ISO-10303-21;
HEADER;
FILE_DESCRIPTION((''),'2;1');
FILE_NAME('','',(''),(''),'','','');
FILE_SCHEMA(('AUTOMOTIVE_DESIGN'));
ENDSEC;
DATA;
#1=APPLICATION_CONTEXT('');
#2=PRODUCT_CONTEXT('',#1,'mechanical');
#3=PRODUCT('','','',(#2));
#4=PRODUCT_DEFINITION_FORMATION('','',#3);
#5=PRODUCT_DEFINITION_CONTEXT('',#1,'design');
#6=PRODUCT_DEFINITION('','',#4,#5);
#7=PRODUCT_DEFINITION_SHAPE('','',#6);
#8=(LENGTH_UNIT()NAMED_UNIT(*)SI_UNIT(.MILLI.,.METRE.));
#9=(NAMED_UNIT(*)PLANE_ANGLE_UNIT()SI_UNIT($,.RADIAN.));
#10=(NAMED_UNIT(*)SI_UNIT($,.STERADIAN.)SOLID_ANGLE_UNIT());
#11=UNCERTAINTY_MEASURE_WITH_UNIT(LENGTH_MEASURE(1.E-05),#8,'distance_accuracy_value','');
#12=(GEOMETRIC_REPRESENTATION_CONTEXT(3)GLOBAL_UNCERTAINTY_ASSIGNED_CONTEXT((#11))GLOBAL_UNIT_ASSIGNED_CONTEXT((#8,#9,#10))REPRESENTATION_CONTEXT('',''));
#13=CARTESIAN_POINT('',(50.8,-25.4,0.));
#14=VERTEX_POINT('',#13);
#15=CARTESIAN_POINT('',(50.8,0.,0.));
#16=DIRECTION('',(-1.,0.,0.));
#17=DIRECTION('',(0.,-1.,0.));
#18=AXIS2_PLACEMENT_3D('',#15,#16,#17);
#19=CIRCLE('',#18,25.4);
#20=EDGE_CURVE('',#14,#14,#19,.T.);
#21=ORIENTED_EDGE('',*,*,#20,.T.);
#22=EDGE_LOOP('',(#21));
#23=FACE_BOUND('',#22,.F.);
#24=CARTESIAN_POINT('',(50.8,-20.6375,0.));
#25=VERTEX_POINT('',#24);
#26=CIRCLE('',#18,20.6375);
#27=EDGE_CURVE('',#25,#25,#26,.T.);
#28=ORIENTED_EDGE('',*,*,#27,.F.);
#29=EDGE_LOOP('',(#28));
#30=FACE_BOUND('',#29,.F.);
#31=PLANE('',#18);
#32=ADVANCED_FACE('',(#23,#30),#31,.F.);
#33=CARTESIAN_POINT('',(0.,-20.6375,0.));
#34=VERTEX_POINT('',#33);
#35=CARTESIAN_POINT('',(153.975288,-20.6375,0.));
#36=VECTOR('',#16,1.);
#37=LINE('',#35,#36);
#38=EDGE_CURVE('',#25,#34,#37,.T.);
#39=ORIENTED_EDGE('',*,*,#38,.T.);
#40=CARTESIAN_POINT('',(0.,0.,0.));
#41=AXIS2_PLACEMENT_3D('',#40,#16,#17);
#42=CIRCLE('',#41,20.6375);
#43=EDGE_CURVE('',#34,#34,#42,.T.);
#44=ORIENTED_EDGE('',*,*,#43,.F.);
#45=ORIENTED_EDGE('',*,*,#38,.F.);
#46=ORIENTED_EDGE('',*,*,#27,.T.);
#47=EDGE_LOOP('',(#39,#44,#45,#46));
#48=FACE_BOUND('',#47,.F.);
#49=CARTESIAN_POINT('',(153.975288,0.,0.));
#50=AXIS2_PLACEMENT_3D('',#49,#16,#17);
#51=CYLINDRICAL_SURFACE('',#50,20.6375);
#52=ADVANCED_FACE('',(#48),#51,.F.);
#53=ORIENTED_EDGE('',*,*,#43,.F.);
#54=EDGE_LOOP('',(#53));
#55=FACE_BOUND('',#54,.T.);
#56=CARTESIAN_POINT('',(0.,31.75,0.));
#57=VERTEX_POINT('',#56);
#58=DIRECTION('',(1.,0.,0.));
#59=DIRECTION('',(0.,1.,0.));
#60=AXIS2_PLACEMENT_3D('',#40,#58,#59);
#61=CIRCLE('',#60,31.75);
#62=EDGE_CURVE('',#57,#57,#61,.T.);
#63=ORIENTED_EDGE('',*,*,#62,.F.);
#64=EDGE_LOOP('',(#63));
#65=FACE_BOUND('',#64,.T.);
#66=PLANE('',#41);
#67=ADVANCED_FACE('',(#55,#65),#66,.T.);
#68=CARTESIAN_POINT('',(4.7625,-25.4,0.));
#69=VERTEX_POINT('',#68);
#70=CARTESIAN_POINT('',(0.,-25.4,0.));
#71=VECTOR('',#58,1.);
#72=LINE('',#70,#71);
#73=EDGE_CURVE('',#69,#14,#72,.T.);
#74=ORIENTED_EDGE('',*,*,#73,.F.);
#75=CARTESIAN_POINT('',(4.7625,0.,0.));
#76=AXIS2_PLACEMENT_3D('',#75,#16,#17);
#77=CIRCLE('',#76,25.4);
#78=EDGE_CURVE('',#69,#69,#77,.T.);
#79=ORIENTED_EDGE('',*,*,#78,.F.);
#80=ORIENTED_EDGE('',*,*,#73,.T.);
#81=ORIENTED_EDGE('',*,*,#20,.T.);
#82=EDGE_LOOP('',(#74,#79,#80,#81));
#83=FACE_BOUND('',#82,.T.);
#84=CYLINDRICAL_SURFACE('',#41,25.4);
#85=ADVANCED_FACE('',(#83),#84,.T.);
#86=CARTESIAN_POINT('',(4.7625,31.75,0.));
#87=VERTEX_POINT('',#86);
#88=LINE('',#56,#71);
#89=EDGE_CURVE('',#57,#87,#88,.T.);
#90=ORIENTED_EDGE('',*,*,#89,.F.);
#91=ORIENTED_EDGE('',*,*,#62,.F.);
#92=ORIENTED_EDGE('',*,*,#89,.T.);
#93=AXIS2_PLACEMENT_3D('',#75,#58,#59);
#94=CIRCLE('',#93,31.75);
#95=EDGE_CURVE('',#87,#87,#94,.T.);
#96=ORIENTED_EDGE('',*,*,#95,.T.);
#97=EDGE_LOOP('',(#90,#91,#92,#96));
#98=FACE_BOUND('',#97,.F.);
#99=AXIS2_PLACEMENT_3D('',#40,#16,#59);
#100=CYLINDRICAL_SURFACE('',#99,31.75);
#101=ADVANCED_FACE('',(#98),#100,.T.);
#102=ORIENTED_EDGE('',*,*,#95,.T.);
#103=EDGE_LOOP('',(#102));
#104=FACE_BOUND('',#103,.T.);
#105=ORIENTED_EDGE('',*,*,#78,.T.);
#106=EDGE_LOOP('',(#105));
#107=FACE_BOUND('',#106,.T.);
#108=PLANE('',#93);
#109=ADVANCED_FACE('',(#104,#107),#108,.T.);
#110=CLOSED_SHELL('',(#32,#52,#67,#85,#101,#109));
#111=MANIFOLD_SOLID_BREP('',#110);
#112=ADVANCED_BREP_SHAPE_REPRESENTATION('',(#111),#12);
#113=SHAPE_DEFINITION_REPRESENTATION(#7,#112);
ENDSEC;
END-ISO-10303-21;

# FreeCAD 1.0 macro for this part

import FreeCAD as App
import Part
import Sketcher

V = App.Vector
Q = App.Units.Quantity

doc = App.newDocument("Part")
body = doc.addObject("PartDesign::Body", "Body")

# Sketch on YZ plane
sketch1 = body.newObject("Sketcher::SketchObject", "Sketch")
sketch1.AttachmentSupport = (doc.getObject("YZ_Plane"), [""])
sketch1.MapMode = "FlatFace"
sketch1.addGeometry(Part.Circle(V(0, 0, 0), V(0, 0, 1), 32), False)
sketch1.addConstraint([
    Sketcher.Constraint("Coincident", 0, 3, -1, 1),
    Sketcher.Constraint("Diameter", 0, Q("2.5 in")),
])
pad1 = body.newObject("PartDesign::Pad", "Pad")
pad1.Profile = sketch1
pad1.Length = Q("0.1875 in")

# Sketch on YZ plane
sketch2 = body.newObject("Sketcher::SketchObject", "Sketch001")
sketch2.AttachmentSupport = (doc.getObject("YZ_Plane"), [""])
sketch2.MapMode = "FlatFace"
sketch2.addGeometry(Part.Circle(V(0, 0, 0), V(0, 0, 1), 25), False)
sketch2.addConstraint([
    Sketcher.Constraint("Coincident", 0, 3, -1, 1),
    Sketcher.Constraint("Diameter", 0, Q("2 in")),
])
pad2 = body.newObject("PartDesign::Pad", "Pad001")
pad2.Profile = sketch2
pad2.Length = Q("2 in")

# Sketch on YZ plane
sketch3 = body.newObject("Sketcher::SketchObject", "Sketch002")
sketch3.AttachmentSupport = (doc.getObject("YZ_Plane"), [""])
sketch3.MapMode = "FlatFace"
sketch3.AttachmentOffset = App.Placement(V(0, 0, 2 * 25.4), App.Rotation())
sketch3.addGeometry(Part.Circle(V(0, 0, 0), V(0, 0, 1), 21), False)
sketch3.addConstraint([
    Sketcher.Constraint("Coincident", 0, 3, -1, 1),
    Sketcher.Constraint("Diameter", 0, Q("1.625 in")),
])
doc.recompute()
hole = body.newObject("PartDesign::Hole", "Hole")
hole.Profile = sketch3
hole.ThreadType = "None"
hole.Diameter = Q("1.625 in")
hole.DepthType = "ThroughAll"

doc.recompute()
